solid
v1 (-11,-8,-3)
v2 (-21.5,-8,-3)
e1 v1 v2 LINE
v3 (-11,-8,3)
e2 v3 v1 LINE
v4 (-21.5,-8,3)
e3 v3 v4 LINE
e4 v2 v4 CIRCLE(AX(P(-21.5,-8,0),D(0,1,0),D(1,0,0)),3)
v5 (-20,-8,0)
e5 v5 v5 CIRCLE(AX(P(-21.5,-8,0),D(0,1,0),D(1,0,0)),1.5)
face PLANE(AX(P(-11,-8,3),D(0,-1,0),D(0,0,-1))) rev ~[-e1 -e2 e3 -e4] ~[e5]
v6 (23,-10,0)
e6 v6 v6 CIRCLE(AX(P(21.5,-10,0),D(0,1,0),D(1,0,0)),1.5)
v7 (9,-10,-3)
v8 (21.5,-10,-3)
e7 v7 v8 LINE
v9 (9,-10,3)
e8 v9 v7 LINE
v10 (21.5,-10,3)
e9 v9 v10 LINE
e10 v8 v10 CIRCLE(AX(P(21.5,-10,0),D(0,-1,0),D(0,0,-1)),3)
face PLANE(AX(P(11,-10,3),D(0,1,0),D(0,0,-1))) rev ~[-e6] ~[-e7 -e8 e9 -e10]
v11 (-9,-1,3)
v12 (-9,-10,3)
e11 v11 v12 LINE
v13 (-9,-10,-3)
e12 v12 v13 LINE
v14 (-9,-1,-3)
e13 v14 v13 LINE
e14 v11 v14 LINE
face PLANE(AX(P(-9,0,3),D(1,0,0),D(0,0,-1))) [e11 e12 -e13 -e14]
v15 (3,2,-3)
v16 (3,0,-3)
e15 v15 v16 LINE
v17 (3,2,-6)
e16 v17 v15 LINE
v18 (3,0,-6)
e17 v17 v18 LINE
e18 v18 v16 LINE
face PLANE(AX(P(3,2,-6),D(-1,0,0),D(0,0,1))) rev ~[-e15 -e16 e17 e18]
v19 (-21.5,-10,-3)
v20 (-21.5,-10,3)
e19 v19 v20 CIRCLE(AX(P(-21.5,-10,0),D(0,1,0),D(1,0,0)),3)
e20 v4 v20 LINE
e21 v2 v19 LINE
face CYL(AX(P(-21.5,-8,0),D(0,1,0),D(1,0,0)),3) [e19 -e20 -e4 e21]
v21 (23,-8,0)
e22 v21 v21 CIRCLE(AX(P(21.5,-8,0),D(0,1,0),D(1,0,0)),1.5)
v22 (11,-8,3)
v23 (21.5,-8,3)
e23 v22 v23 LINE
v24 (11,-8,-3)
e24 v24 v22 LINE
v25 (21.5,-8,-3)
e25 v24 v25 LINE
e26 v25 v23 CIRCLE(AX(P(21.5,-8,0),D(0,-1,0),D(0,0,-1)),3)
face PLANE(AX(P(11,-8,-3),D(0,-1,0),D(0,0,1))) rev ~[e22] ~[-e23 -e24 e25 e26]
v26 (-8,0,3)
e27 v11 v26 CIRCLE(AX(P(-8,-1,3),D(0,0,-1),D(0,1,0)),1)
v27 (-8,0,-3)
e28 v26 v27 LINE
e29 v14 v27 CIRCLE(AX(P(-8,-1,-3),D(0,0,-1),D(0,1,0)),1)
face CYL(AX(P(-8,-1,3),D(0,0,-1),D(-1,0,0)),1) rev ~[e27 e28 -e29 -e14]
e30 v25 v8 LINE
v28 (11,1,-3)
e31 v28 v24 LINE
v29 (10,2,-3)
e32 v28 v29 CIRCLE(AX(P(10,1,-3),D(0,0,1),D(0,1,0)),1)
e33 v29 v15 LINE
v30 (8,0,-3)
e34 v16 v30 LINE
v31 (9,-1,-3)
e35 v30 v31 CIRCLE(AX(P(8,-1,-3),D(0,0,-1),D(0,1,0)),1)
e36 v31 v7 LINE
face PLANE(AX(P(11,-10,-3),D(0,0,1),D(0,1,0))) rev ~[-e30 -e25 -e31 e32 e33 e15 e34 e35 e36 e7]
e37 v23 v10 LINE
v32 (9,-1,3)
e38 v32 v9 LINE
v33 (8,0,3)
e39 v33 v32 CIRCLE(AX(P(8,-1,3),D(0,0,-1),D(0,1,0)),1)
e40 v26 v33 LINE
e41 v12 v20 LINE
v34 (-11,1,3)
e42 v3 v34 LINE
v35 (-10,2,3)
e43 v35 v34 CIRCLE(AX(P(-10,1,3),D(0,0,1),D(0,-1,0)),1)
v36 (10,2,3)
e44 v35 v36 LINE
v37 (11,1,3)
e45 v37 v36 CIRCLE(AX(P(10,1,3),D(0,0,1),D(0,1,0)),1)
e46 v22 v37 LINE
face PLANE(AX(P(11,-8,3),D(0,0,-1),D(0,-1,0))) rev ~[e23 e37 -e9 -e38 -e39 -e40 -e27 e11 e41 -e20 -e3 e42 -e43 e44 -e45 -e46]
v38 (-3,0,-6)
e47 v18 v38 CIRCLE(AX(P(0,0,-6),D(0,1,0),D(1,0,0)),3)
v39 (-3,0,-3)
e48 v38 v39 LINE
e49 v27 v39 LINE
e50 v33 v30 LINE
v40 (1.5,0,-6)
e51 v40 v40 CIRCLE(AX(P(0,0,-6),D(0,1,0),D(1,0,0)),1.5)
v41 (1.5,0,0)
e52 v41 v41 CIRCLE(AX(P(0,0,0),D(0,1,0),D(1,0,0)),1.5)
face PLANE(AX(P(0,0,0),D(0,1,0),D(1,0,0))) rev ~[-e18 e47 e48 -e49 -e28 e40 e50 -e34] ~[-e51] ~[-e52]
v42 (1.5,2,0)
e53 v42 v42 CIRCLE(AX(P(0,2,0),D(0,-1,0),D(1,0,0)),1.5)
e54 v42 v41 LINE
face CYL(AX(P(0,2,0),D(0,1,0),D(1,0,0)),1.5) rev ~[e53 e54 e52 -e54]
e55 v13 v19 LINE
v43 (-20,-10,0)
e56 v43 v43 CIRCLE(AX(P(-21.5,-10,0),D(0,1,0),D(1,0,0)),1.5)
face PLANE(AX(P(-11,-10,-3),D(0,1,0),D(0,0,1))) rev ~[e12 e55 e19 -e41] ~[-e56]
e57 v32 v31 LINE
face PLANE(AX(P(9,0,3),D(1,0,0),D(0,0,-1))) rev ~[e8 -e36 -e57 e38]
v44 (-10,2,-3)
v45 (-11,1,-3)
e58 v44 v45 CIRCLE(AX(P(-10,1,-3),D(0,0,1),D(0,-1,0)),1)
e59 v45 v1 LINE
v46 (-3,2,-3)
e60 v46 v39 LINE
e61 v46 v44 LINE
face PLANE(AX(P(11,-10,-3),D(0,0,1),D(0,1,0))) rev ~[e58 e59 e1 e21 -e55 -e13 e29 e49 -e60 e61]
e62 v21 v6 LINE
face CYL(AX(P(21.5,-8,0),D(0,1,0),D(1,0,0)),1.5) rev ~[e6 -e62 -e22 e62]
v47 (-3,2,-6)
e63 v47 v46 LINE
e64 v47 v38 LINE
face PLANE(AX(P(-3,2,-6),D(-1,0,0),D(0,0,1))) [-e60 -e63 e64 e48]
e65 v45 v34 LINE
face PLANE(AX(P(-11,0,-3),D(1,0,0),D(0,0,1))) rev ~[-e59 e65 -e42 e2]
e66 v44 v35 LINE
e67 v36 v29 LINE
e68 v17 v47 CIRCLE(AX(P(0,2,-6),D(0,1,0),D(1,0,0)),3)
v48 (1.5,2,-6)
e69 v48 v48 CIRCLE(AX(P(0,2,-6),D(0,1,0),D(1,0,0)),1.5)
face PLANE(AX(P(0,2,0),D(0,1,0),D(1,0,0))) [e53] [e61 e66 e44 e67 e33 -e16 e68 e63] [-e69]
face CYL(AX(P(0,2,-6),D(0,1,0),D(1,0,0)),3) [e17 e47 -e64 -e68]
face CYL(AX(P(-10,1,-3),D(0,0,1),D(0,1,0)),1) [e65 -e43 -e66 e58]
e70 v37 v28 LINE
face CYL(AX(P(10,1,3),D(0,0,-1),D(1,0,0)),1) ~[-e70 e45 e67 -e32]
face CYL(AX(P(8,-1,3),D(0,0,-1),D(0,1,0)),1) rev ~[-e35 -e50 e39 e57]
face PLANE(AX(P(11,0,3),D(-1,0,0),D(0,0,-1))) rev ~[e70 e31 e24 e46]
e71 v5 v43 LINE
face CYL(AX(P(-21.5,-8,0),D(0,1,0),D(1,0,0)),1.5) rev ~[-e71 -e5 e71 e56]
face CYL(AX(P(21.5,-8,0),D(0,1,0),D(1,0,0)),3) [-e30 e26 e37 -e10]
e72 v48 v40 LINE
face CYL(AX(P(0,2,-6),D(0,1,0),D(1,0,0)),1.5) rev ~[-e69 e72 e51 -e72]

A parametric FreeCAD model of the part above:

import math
import FreeCAD as App
import Part
import Sketcher

V = App.Vector


def edges_at(feature, points):
    """Names of the edges that pass closest to the given points."""
    edges = feature.Shape.Edges
    near = lambda p: min(range(len(edges)), key=lambda i: edges[i].distToShape(Part.Vertex(*p))[0])
    return sorted({f"Edge{near(p) + 1}" for p in points})


def add_polygon(sketch, points):
    """Adds a closed chain of lines whose ends are joined by coincident constraints."""
    first, n = sketch.GeometryCount, len(points)
    for a, b in zip(points, points[1:] + points[:1]):
        sketch.addGeometry(Part.LineSegment(App.Vector(*a, 0), App.Vector(*b, 0)), False)
    for i in range(n):
        sketch.addConstraint(Sketcher.Constraint("Coincident", first + i, 2, first + (i + 1) % n, 1))

doc = App.newDocument("Part")
body = doc.addObject("PartDesign::Body", "Body")

sketch1 = body.newObject("Sketcher::SketchObject", "Sketch")
sketch1.AttachmentSupport = (doc.getObject("XZ_Plane"), [""])
sketch1.MapMode = "FlatFace"
add_polygon(sketch1, [(-11, -3), (-11, 3), (11, 3), (11, -3)])
sketch1.addConstraint([
    Sketcher.Constraint("Vertical", 0),
    Sketcher.Constraint("Horizontal", 1),
    Sketcher.Constraint("Vertical", 2),
    Sketcher.Constraint("Horizontal", 3),
    Sketcher.Constraint("Symmetric", 0, 2, 2, 2, -1, 1),
    Sketcher.Constraint("DistanceX", 1, 1, 1, 2, 22.0),
    Sketcher.Constraint("DistanceY", 0, 1, 0, 2, 6.0),
])
pad1 = body.newObject("PartDesign::Pad", "Pad")
pad1.Profile = sketch1
pad1.Length = 2
pad1.Reversed = True

sketch2 = body.newObject("Sketcher::SketchObject", "Sketch001")
sketch2.AttachmentSupport = (doc.getObject("XZ_Plane"), [""])
sketch2.MapMode = "FlatFace"
add_polygon(sketch2, [(-11, -3), (-9, -3), (-9, 3), (-11, 3)])
add_polygon(sketch2, [(9, -3), (11, -3), (11, 3), (9, 3)])
sketch2.addConstraint([
    Sketcher.Constraint("Horizontal", 0),
    Sketcher.Constraint("Vertical", 1),
    Sketcher.Constraint("Horizontal", 2),
    Sketcher.Constraint("Vertical", 3),
    Sketcher.Constraint("Horizontal", 4),
    Sketcher.Constraint("Vertical", 5),
    Sketcher.Constraint("Horizontal", 6),
    Sketcher.Constraint("Vertical", 7),
    Sketcher.Constraint("Symmetric", 2, 2, 4, 2, -1, 1),
    Sketcher.Constraint("Symmetric", 0, 2, 6, 2, -1, 1),
    Sketcher.Constraint("Horizontal", 3, 2, 4, 2),
    Sketcher.Constraint("DistanceX", 0, 1, 0, 2, 2.0),
    Sketcher.Constraint("DistanceY", 1, 1, 1, 2, 6.0),
    Sketcher.Constraint("DistanceX", 0, 2, -1, 1, 9.0),
])
pad2 = body.newObject("PartDesign::Pad", "Pad001")
pad2.Profile = sketch2
pad2.Length = 10

sketch3 = body.newObject("Sketcher::SketchObject", "Sketch002")
sketch3.AttachmentSupport = (doc.getObject("YZ_Plane"), [""])
sketch3.MapMode = "FlatFace"
sketch3.AttachmentOffset = App.Placement(V(0, 0, -11), App.Rotation())
add_polygon(sketch3, [(-8, -3), (-10, -3), (-10, 3), (-8, 3)])
sketch3.addConstraint([
    Sketcher.Constraint("Horizontal", 0),
    Sketcher.Constraint("Vertical", 1),
    Sketcher.Constraint("Horizontal", 2),
    Sketcher.Constraint("Vertical", 3),
    Sketcher.Constraint("DistanceX", 0, 2, 0, 1, 2.0),
    Sketcher.Constraint("DistanceY", 1, 1, 1, 2, 6.0),
    Sketcher.Constraint("DistanceX", 0, 2, -1, 1, 10.0),
    Sketcher.Constraint("DistanceY", 0, 2, -1, 1, 3.0),
])
pad3 = body.newObject("PartDesign::Pad", "Pad002")
pad3.Profile = sketch3
pad3.Length = 14
pad3.Reversed = True

sketch4 = body.newObject("Sketcher::SketchObject", "Sketch003")
sketch4.AttachmentSupport = (doc.getObject("YZ_Plane"), [""])
sketch4.MapMode = "FlatFace"
sketch4.AttachmentOffset = App.Placement(V(0, 0, 11), App.Rotation())
add_polygon(sketch4, [(-8, 3), (-10, 3), (-10, -3), (-8, -3)])
sketch4.addConstraint([
    Sketcher.Constraint("Horizontal", 0),
    Sketcher.Constraint("Vertical", 1),
    Sketcher.Constraint("Horizontal", 2),
    Sketcher.Constraint("Vertical", 3),
    Sketcher.Constraint("DistanceX", 0, 2, 0, 1, 2.0),
    Sketcher.Constraint("DistanceY", 1, 2, 1, 1, 6.0),
    Sketcher.Constraint("DistanceX", 0, 2, -1, 1, 10.0),
    Sketcher.Constraint("DistanceY", -1, 1, 0, 2, 3.0),
])
pad4 = body.newObject("PartDesign::Pad", "Pad003")
pad4.Profile = sketch4
pad4.Length = 14

sketch5 = body.newObject("Sketcher::SketchObject", "Sketch004")
sketch5.AttachmentSupport = (doc.getObject("XZ_Plane"), [""])
sketch5.MapMode = "FlatFace"
sketch5.AttachmentOffset = App.Placement(V(0, 0, 8), App.Rotation())
sketch5.addGeometry([
    Part.ArcOfCircle(Part.Circle(V(21.5, 0, 0), V(0, 0, 1), 3.5), math.radians(0), math.radians(59)),
    Part.LineSegment(V(23.3, 3, 0), V(25, 3, 0)),
    Part.LineSegment(V(25, 3, 0), V(25, 0, 0)),
    Part.ArcOfCircle(Part.Circle(V(21.5, 0, 0), V(0, 0, 1), 3.5), math.radians(-59), math.radians(0)),
    Part.LineSegment(V(25, 0, 0), V(25, -3, 0)),
    Part.LineSegment(V(25, -3, 0), V(23.3, -3, 0)),
], False)
sketch5.addConstraint([
    Sketcher.Constraint("Coincident", 0, 2, 1, 1),
    Sketcher.Constraint("Coincident", 1, 2, 2, 1),
    Sketcher.Constraint("Tangent", 2, 2, 0, 1),
    Sketcher.Constraint("Tangent", 3, 2, 4, 1),
    Sketcher.Constraint("Coincident", 4, 2, 5, 1),
    Sketcher.Constraint("Coincident", 5, 2, 3, 1),
    Sketcher.Constraint("Horizontal", 1),
    Sketcher.Constraint("Vertical", 2),
    Sketcher.Constraint("Vertical", 4),
    Sketcher.Constraint("Horizontal", 5),
    Sketcher.Constraint("Coincident", 3, 3, 0, 3),
    Sketcher.Constraint("Equal", 0, 3),
    Sketcher.Constraint("Symmetric", 0, 2, 5, 2, -1),
    Sketcher.Constraint("Radius", 0, 3.5),
    Sketcher.Constraint("DistanceY", 2, 2, 2, 1, 3.0),
    Sketcher.Constraint("DistanceX", -1, 1, 1, 2, 25.0),
])
pocket1 = body.newObject("PartDesign::Pocket", "Pocket")
pocket1.Profile = sketch5
pocket1.Length = 2
pocket1.Reversed = True

sketch6 = body.newObject("Sketcher::SketchObject", "Sketch005")
sketch6.AttachmentSupport = (doc.getObject("XZ_Plane"), [""])
sketch6.MapMode = "FlatFace"
sketch6.AttachmentOffset = App.Placement(V(0, 0, 8), App.Rotation())
sketch6.addGeometry([
    Part.ArcOfCircle(Part.Circle(V(-21.5, 0, 0), V(0, 0, 1), 3.5), math.radians(180), math.radians(239)),
    Part.LineSegment(V(-23.3, -3, 0), V(-25, -3, 0)),
    Part.LineSegment(V(-25, -3, 0), V(-25, 0, 0)),
    Part.LineSegment(V(-25, 3, 0), V(-23.3, 3, 0)),
    Part.ArcOfCircle(Part.Circle(V(-21.5, 0, 0), V(0, 0, 1), 3.5), math.radians(121), math.radians(180)),
    Part.LineSegment(V(-25, 0, 0), V(-25, 3, 0)),
], False)
sketch6.addConstraint([
    Sketcher.Constraint("Coincident", 0, 2, 1, 1),
    Sketcher.Constraint("Coincident", 1, 2, 2, 1),
    Sketcher.Constraint("Tangent", 2, 2, 0, 1),
    Sketcher.Constraint("Coincident", 3, 2, 4, 1),
    Sketcher.Constraint("Tangent", 4, 2, 5, 1),
    Sketcher.Constraint("Coincident", 5, 2, 3, 1),
    Sketcher.Constraint("Horizontal", 1),
    Sketcher.Constraint("Vertical", 2),
    Sketcher.Constraint("Horizontal", 3),
    Sketcher.Constraint("Vertical", 5),
    Sketcher.Constraint("Coincident", 4, 3, 0, 3),
    Sketcher.Constraint("Equal", 0, 4),
    Sketcher.Constraint("Symmetric", 0, 2, 3, 2, -1),
    Sketcher.Constraint("Radius", 0, 3.5),
    Sketcher.Constraint("DistanceY", 2, 1, 2, 2, 3.0),
    Sketcher.Constraint("DistanceX", 1, 2, -1, 1, 25.0),
])
pocket2 = body.newObject("PartDesign::Pocket", "Pocket001")
pocket2.Profile = sketch6
pocket2.Length = 2
pocket2.Reversed = True

sketch7 = body.newObject("Sketcher::SketchObject", "Sketch006")
sketch7.AttachmentSupport = (doc.getObject("XZ_Plane"), [""])
sketch7.MapMode = "FlatFace"
sketch7.AttachmentOffset = App.Placement(V(0, 0, 8), App.Rotation())
sketch7.addGeometry(Part.Circle(V(21.5, 0, 0), V(0, 0, 1), 1.5), False)
sketch7.addConstraint([
    Sketcher.Constraint("PointOnObject", 0, 3, -1),
    Sketcher.Constraint("Diameter", 0, 3.0),
    Sketcher.Constraint("DistanceX", -1, 1, 0, 3, 21.5),
])
pocket3 = body.newObject("PartDesign::Pocket", "Pocket002")
pocket3.Profile = sketch7
pocket3.Length = 2
pocket3.Reversed = True

sketch8 = body.newObject("Sketcher::SketchObject", "Sketch007")
sketch8.AttachmentSupport = (doc.getObject("XZ_Plane"), [""])
sketch8.MapMode = "FlatFace"
sketch8.AttachmentOffset = App.Placement(V(0, 0, 8), App.Rotation())
sketch8.addGeometry(Part.Circle(V(-21.5, 0, 0), V(0, 0, 1), 1.5), False)
sketch8.addConstraint([
    Sketcher.Constraint("PointOnObject", 0, 3, -1),
    Sketcher.Constraint("Diameter", 0, 3.0),
    Sketcher.Constraint("DistanceX", 0, 3, -1, 1, 21.5),
])
pocket4 = body.newObject("PartDesign::Pocket", "Pocket003")
pocket4.Profile = sketch8
pocket4.Length = 2
pocket4.Reversed = True
doc.recompute()

fillet = body.newObject("PartDesign::Fillet", "Fillet")
fillet.Base = (pocket4, edges_at(pocket4, [
    (11, 2, 0),
    (-11, 2, 0),
    (9, 0, 0),
    (-9, 0, 0),
]))
fillet.Radius = 1

sketch9 = body.newObject("Sketcher::SketchObject", "Sketch008")
sketch9.AttachmentSupport = (doc.getObject("XZ_Plane"), [""])
sketch9.MapMode = "FlatFace"
sketch9.AttachmentOffset = App.Placement(V(0, 0, -2), App.Rotation())
sketch9.addGeometry(Part.Circle(V(0, 0, 0), V(0, 0, 1), 1.5), False)
sketch9.addConstraint([
    Sketcher.Constraint("Coincident", 0, 3, -1, 1),
    Sketcher.Constraint("Diameter", 0, 3.0),
])
pocket5 = body.newObject("PartDesign::Pocket", "Pocket004")
pocket5.Profile = sketch9
pocket5.Length = 2
pocket5.Reversed = True

sketch10 = body.newObject("Sketcher::SketchObject", "Sketch009")
sketch10.AttachmentSupport = (doc.getObject("XZ_Plane"), [""])
sketch10.MapMode = "FlatFace"
sketch10.AttachmentOffset = App.Placement(V(0, 0, -2), App.Rotation())
sketch10.addGeometry([
    Part.LineSegment(V(-3.5, -3, 0), V(3.5, -3, 0)),
    Part.LineSegment(V(3.5, -3, 0), V(3.5, -5, 0)),
    Part.ArcOfCircle(Part.Circle(V(0, -5, 0), V(0, 0, 1), 3.5), math.radians(180), math.radians(360)),
    Part.LineSegment(V(-3.5, -5, 0), V(-3.5, -3, 0)),
    Part.Circle(V(0, -6, 0), V(0, 0, 1), 1.5),
], False)
sketch10.addConstraint([
    Sketcher.Constraint("Coincident", 0, 2, 1, 1),
    Sketcher.Constraint("Tangent", 1, 2, 2, 2),
    Sketcher.Constraint("Tangent", 2, 1, 3, 1),
    Sketcher.Constraint("Coincident", 3, 2, 0, 1),
    Sketcher.Constraint("Horizontal", 0),
    Sketcher.Constraint("Vertical", 1),
    Sketcher.Constraint("Vertical", 3),
    Sketcher.Constraint("PointOnObject", 2, 3, -2),
    Sketcher.Constraint("PointOnObject", 4, 3, -2),
    Sketcher.Constraint("Diameter", 4, 3.0),
    Sketcher.Constraint("DistanceY", 4, 3, -1, 1, 6.0),
    Sketcher.Constraint("DistanceY", 0, 2, -1, 1, 3.0),
    Sketcher.Constraint("Radius", 2, 3.5),
    Sketcher.Constraint("DistanceY", 1, 2, 1, 1, 2.0),
])
pad5 = body.newObject("PartDesign::Pad", "Pad004")
pad5.Profile = sketch10
pad5.Length = 2

sketch11 = body.newObject("Sketcher::SketchObject", "Sketch010")
sketch11.AttachmentSupport = (doc.getObject("XZ_Plane"), [""])
sketch11.MapMode = "FlatFace"
sketch11.AttachmentOffset = App.Placement(V(0, 0, 8), App.Rotation())
sketch11.addGeometry([
    Part.LineSegment(V(21.5, 3, 0), V(23.3, 3, 0)),
    Part.ArcOfCircle(Part.Circle(V(21.5, 0, 0), V(0, 0, 1), 3.5), math.radians(-59), math.radians(59)),
    Part.LineSegment(V(23.3, -3, 0), V(21.5, -3, 0)),
    Part.ArcOfCircle(Part.Circle(V(21.5, 0, 0), V(0, 0, 1), 3), math.radians(-90), math.radians(90)),
], False)
sketch11.addConstraint([
    Sketcher.Constraint("Coincident", 0, 2, 1, 2),
    Sketcher.Constraint("Coincident", 1, 1, 2, 1),
    Sketcher.Constraint("Tangent", 2, 2, 3, 1),
    Sketcher.Constraint("Tangent", 3, 2, 0, 1),
    Sketcher.Constraint("Horizontal", 0),
    Sketcher.Constraint("Horizontal", 2),
    Sketcher.Constraint("Coincident", 3, 3, 1, 3),
    Sketcher.Constraint("PointOnObject", 1, 3, -1),
    Sketcher.Constraint("Radius", 3, 3.0),
    Sketcher.Constraint("Radius", 1, 3.5),
    Sketcher.Constraint("DistanceX", -1, 1, 1, 3, 21.5),
])
pocket6 = body.newObject("PartDesign::Pocket", "Pocket005")
pocket6.Profile = sketch11
pocket6.Length = 2
pocket6.Reversed = True

sketch12 = body.newObject("Sketcher::SketchObject", "Sketch011")
sketch12.AttachmentSupport = (doc.getObject("XZ_Plane"), [""])
sketch12.MapMode = "FlatFace"
sketch12.AttachmentOffset = App.Placement(V(0, 0, 8), App.Rotation())
sketch12.addGeometry([
    Part.LineSegment(V(-21.5, -3, 0), V(-23.3, -3, 0)),
    Part.ArcOfCircle(Part.Circle(V(-21.5, 0, 0), V(0, 0, 1), 3.5), math.radians(121), math.radians(239)),
    Part.LineSegment(V(-23.3, 3, 0), V(-21.5, 3, 0)),
    Part.ArcOfCircle(Part.Circle(V(-21.5, 0, 0), V(0, 0, 1), 3), math.radians(90), math.radians(270)),
], False)
sketch12.addConstraint([
    Sketcher.Constraint("Coincident", 0, 2, 1, 2),
    Sketcher.Constraint("Coincident", 1, 1, 2, 1),
    Sketcher.Constraint("Tangent", 2, 2, 3, 1),
    Sketcher.Constraint("Tangent", 3, 2, 0, 1),
    Sketcher.Constraint("Horizontal", 0),
    Sketcher.Constraint("Horizontal", 2),
    Sketcher.Constraint("Coincident", 3, 3, 1, 3),
    Sketcher.Constraint("PointOnObject", 1, 3, -1),
    Sketcher.Constraint("Radius", 3, 3.0),
    Sketcher.Constraint("Radius", 1, 3.5),
    Sketcher.Constraint("DistanceX", 1, 3, -1, 1, 21.5),
])
pocket7 = body.newObject("PartDesign::Pocket", "Pocket006")
pocket7.Profile = sketch12
pocket7.Length = 2
pocket7.Reversed = True

sketch13 = body.newObject("Sketcher::SketchObject", "Sketch012")
sketch13.AttachmentSupport = (doc.getObject("XZ_Plane"), [""])
sketch13.MapMode = "FlatFace"
sketch13.AttachmentOffset = App.Placement(V(0, 0, -2), App.Rotation())
sketch13.addGeometry([
    Part.LineSegment(V(3, -3, 0), V(3.5, -3, 0)),
    Part.LineSegment(V(3.5, -3, 0), V(3.5, -5, 0)),
    Part.ArcOfCircle(Part.Circle(V(0, -5, 0), V(0, 0, 1), 3.5), math.radians(180), math.radians(360)),
    Part.LineSegment(V(-3.5, -5, 0), V(-3.5, -3, 0)),
    Part.LineSegment(V(-3.5, -3, 0), V(-3, -3, 0)),
    Part.LineSegment(V(-3, -3, 0), V(-3, -6, 0)),
    Part.ArcOfCircle(Part.Circle(V(0, -6, 0), V(0, 0, 1), 3), math.radians(0), math.radians(180)),
    Part.LineSegment(V(3, -6, 0), V(3, -3, 0)),
    Part.Circle(V(0, -6, 0), V(0, 0, 1), 1.5),
], False)
sketch13.addConstraint([
    Sketcher.Constraint("Coincident", 0, 2, 1, 1),
    Sketcher.Constraint("Tangent", 1, 2, 2, 2),
    Sketcher.Constraint("Tangent", 2, 1, 3, 1),
    Sketcher.Constraint("Coincident", 3, 2, 4, 1),
    Sketcher.Constraint("Coincident", 4, 2, 5, 1),
    Sketcher.Constraint("Tangent", 5, 2, 6, 2),
    Sketcher.Constraint("Tangent", 6, 1, 7, 1),
    Sketcher.Constraint("Coincident", 7, 2, 0, 1),
    Sketcher.Constraint("Horizontal", 0),
    Sketcher.Constraint("Vertical", 1),
    Sketcher.Constraint("Vertical", 3),
    Sketcher.Constraint("Horizontal", 4),
    Sketcher.Constraint("Vertical", 5),
    Sketcher.Constraint("Vertical", 7),
    Sketcher.Constraint("Coincident", 8, 3, 6, 3),
    Sketcher.Constraint("Symmetric", 0, 2, 3, 2, -2),
    Sketcher.Constraint("PointOnObject", 6, 3, -2),
    Sketcher.Constraint("Diameter", 8, 3.0),
    Sketcher.Constraint("Radius", 6, 3.0),
    Sketcher.Constraint("DistanceY", 5, 2, 5, 1, 3.0),
    Sketcher.Constraint("DistanceY", 6, 3, -1, 1, 6.0),
    Sketcher.Constraint("Radius", 2, 3.5),
    Sketcher.Constraint("DistanceY", 1, 2, 1, 1, 2.0),
])
pocket8 = body.newObject("PartDesign::Pocket", "Pocket007")
pocket8.Profile = sketch13
pocket8.Length = 2
pocket8.Reversed = True

sketch14 = body.newObject("Sketcher::SketchObject", "Sketch013")
sketch14.AttachmentSupport = (doc.getObject("XZ_Plane"), [""])
sketch14.MapMode = "FlatFace"
sketch14.AttachmentOffset = App.Placement(V(0, 0, -2), App.Rotation())
sketch14.addGeometry([
    Part.Circle(V(0, -6, 0), V(0, 0, 1), 3),
    Part.Circle(V(0, -6, 0), V(0, 0, 1), 1.5),
], False)
sketch14.addConstraint([
    Sketcher.Constraint("Coincident", 1, 3, 0, 3),
    Sketcher.Constraint("PointOnObject", 0, 3, -2),
    Sketcher.Constraint("Diameter", 0, 6.0),
    Sketcher.Constraint("Diameter", 1, 3.0),
    Sketcher.Constraint("DistanceY", 0, 3, -1, 1, 6.0),
])
pad6 = body.newObject("PartDesign::Pad", "Pad005")
pad6.Profile = sketch14
pad6.Length = 2

doc.recompute()
